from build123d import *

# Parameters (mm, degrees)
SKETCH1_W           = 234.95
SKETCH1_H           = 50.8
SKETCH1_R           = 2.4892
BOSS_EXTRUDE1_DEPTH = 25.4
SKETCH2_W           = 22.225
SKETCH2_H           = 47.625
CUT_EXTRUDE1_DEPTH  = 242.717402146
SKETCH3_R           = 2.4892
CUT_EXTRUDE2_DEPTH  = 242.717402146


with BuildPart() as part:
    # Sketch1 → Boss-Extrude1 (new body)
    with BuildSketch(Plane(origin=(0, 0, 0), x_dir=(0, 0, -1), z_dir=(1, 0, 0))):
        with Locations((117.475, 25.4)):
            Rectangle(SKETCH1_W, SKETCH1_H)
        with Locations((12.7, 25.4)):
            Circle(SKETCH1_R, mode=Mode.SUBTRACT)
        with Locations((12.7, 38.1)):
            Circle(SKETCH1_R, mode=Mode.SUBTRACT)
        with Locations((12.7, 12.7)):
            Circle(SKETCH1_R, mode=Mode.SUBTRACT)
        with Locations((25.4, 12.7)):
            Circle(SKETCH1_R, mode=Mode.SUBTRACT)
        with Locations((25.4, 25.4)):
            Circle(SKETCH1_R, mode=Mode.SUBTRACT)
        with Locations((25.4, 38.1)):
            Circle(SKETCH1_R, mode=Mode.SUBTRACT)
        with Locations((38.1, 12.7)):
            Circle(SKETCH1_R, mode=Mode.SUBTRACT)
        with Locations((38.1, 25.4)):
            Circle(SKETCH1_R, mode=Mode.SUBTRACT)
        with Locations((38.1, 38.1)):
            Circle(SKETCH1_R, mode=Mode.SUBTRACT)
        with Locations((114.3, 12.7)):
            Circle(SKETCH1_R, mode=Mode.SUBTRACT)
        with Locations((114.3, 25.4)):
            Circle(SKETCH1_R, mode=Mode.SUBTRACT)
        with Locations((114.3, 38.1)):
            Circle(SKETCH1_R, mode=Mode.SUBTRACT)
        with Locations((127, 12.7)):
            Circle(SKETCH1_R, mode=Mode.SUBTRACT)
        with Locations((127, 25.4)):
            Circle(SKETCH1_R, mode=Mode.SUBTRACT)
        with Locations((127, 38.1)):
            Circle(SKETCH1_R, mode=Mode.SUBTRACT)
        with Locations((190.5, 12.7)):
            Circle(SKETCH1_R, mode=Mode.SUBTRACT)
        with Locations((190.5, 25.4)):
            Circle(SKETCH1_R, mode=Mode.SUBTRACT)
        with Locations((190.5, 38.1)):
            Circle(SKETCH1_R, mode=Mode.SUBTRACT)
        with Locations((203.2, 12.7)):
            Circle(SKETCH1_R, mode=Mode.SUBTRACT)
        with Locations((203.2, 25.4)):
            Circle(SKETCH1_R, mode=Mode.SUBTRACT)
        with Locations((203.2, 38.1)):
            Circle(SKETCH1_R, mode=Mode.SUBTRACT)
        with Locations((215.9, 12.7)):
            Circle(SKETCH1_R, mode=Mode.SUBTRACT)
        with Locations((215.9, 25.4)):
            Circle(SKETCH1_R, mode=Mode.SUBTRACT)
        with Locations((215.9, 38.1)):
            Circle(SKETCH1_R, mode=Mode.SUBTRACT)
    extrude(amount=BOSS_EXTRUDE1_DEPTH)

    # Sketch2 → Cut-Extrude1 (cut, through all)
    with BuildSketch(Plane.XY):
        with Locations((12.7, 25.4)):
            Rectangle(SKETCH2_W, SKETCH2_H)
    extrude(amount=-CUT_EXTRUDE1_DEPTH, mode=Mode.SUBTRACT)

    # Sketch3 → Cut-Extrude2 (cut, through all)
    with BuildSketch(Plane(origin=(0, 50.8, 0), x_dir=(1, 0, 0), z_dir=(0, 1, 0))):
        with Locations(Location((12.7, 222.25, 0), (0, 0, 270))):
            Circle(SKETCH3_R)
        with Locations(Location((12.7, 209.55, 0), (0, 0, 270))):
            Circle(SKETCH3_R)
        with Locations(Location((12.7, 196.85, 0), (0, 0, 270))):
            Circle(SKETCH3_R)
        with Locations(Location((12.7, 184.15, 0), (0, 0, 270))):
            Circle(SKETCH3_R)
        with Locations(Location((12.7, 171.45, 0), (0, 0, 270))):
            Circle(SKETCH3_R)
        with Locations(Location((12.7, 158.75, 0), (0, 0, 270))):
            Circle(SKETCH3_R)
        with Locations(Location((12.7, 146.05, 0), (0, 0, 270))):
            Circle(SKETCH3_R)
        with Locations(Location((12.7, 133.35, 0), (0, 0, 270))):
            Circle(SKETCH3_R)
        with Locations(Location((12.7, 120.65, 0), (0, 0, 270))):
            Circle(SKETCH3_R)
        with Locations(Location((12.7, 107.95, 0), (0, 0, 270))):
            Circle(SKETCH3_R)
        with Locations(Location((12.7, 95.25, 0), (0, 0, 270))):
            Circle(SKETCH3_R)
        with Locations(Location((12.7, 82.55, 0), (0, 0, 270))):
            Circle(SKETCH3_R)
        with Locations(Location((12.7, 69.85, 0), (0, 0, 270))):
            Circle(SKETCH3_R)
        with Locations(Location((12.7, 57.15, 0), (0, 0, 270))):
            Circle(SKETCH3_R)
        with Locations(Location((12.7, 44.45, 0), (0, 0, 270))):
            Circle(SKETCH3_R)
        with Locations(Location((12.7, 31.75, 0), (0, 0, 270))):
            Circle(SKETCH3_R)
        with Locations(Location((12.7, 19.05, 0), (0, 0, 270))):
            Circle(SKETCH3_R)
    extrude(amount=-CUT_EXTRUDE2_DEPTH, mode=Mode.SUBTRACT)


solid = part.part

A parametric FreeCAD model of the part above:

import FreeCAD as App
import Part
import Sketcher
Q = App.Units.Quantity


def add_polygon(sketch, points):
    """Adds a closed chain of lines whose ends are joined by coincident constraints."""
    first, n = sketch.GeometryCount, len(points)
    for a, b in zip(points, points[1:] + points[:1]):
        sketch.addGeometry(Part.LineSegment(App.Vector(*a, 0), App.Vector(*b, 0)), False)
    for i in range(n):
        sketch.addConstraint(Sketcher.Constraint("Coincident", first + i, 2, first + (i + 1) % n, 1))

doc = App.newDocument("Part")
body = doc.addObject("PartDesign::Body", "Body")

# Sketch on YZ plane
sketch1 = body.newObject("Sketcher::SketchObject", "Sketch")
sketch1.AttachmentSupport = (doc.getObject("YZ_Plane"), [""])
sketch1.MapMode = "FlatFace"
add_polygon(sketch1, [(50.8, 0), (0, 0), (0, -234.95), (50.8, -234.95)])  # lines 0-3
sketch1.addGeometry(Part.Circle(App.Vector(12.7, -12.7, 0), App.Vector(0, 0, 1), 2.4892), False)  # 4
sketch1.addGeometry(Part.Circle(App.Vector(12.7, -25.4, 0), App.Vector(0, 0, 1), 2.4892), False)  # 5
sketch1.addGeometry(Part.Circle(App.Vector(12.7, -38.1, 0), App.Vector(0, 0, 1), 2.4892), False)  # 6
sketch1.addGeometry(Part.Circle(App.Vector(12.7, -114.3, 0), App.Vector(0, 0, 1), 2.4892), False)  # 7
sketch1.addGeometry(Part.Circle(App.Vector(25.4, -12.7, 0), App.Vector(0, 0, 1), 2.4892), False)  # 8
sketch1.addGeometry(Part.Circle(App.Vector(25.4, -25.4, 0), App.Vector(0, 0, 1), 2.4892), False)  # 9
sketch1.addGeometry(Part.Circle(App.Vector(25.4, -38.1, 0), App.Vector(0, 0, 1), 2.4892), False)  # 10
sketch1.addGeometry(Part.Circle(App.Vector(25.4, -114.3, 0), App.Vector(0, 0, 1), 2.4892), False)  # 11
sketch1.addGeometry(Part.Circle(App.Vector(12.7, -127, 0), App.Vector(0, 0, 1), 2.4892), False)  # 12
sketch1.addGeometry(Part.Circle(App.Vector(12.7, -190.5, 0), App.Vector(0, 0, 1), 2.4892), False)  # 13
sketch1.addGeometry(Part.Circle(App.Vector(12.7, -203.2, 0), App.Vector(0, 0, 1), 2.4892), False)  # 14
sketch1.addGeometry(Part.Circle(App.Vector(12.7, -215.9, 0), App.Vector(0, 0, 1), 2.4892), False)  # 15
sketch1.addGeometry(Part.Circle(App.Vector(25.4, -127, 0), App.Vector(0, 0, 1), 2.4892), False)  # 16
sketch1.addGeometry(Part.Circle(App.Vector(25.4, -190.5, 0), App.Vector(0, 0, 1), 2.4892), False)  # 17
sketch1.addGeometry(Part.Circle(App.Vector(25.4, -203.2, 0), App.Vector(0, 0, 1), 2.4892), False)  # 18
sketch1.addGeometry(Part.Circle(App.Vector(25.4, -215.9, 0), App.Vector(0, 0, 1), 2.4892), False)  # 19
sketch1.addGeometry(Part.Circle(App.Vector(38.1, -12.7, 0), App.Vector(0, 0, 1), 2.4892), False)  # 20
sketch1.addGeometry(Part.Circle(App.Vector(38.1, -25.4, 0), App.Vector(0, 0, 1), 2.4892), False)  # 21
sketch1.addGeometry(Part.Circle(App.Vector(38.1, -38.1, 0), App.Vector(0, 0, 1), 2.4892), False)  # 22
sketch1.addGeometry(Part.Circle(App.Vector(38.1, -114.3, 0), App.Vector(0, 0, 1), 2.4892), False)  # 23
sketch1.addGeometry(Part.Circle(App.Vector(38.1, -127, 0), App.Vector(0, 0, 1), 2.4892), False)  # 24
sketch1.addGeometry(Part.Circle(App.Vector(38.1, -190.5, 0), App.Vector(0, 0, 1), 2.4892), False)  # 25
sketch1.addGeometry(Part.Circle(App.Vector(38.1, -203.2, 0), App.Vector(0, 0, 1), 2.4892), False)  # 26
sketch1.addGeometry(Part.Circle(App.Vector(38.1, -215.9, 0), App.Vector(0, 0, 1), 2.4892), False)  # 27
sketch1.addConstraint(Sketcher.Constraint("Horizontal", 0))
sketch1.addConstraint(Sketcher.Constraint("Vertical", 1))
sketch1.addConstraint(Sketcher.Constraint("Horizontal", 2))
sketch1.addConstraint(Sketcher.Constraint("Vertical", 3))
sketch1.addConstraint(Sketcher.Constraint("Coincident", 0, 2, -1, 1))
sketch1.addConstraint(Sketcher.Constraint("Equal", 4, 5))
sketch1.addConstraint(Sketcher.Constraint("Equal", 5, 6))
sketch1.addConstraint(Sketcher.Constraint("Equal", 6, 7))
sketch1.addConstraint(Sketcher.Constraint("Equal", 7, 8))
sketch1.addConstraint(Sketcher.Constraint("Equal", 8, 9))
sketch1.addConstraint(Sketcher.Constraint("Equal", 9, 10))
sketch1.addConstraint(Sketcher.Constraint("Equal", 10, 11))
sketch1.addConstraint(Sketcher.Constraint("Equal", 11, 12))
sketch1.addConstraint(Sketcher.Constraint("Equal", 12, 13))
sketch1.addConstraint(Sketcher.Constraint("Equal", 13, 14))
sketch1.addConstraint(Sketcher.Constraint("Equal", 14, 15))
sketch1.addConstraint(Sketcher.Constraint("Equal", 15, 16))
sketch1.addConstraint(Sketcher.Constraint("Equal", 16, 17))
sketch1.addConstraint(Sketcher.Constraint("Equal", 17, 18))
sketch1.addConstraint(Sketcher.Constraint("Equal", 18, 19))
sketch1.addConstraint(Sketcher.Constraint("Equal", 19, 20))
sketch1.addConstraint(Sketcher.Constraint("Equal", 20, 21))
sketch1.addConstraint(Sketcher.Constraint("Equal", 21, 22))
sketch1.addConstraint(Sketcher.Constraint("Equal", 22, 23))
sketch1.addConstraint(Sketcher.Constraint("Equal", 23, 24))
sketch1.addConstraint(Sketcher.Constraint("Equal", 24, 25))
sketch1.addConstraint(Sketcher.Constraint("Equal", 25, 26))
sketch1.addConstraint(Sketcher.Constraint("Equal", 26, 27))
sketch1.addConstraint(Sketcher.Constraint("Horizontal", 4, 3, 8, 3))
sketch1.addConstraint(Sketcher.Constraint("Horizontal", 5, 3, 9, 3))
sketch1.addConstraint(Sketcher.Constraint("Horizontal", 6, 3, 10, 3))
sketch1.addConstraint(Sketcher.Constraint("Horizontal", 7, 3, 11, 3))
sketch1.addConstraint(Sketcher.Constraint("Horizontal", 12, 3, 16, 3))
sketch1.addConstraint(Sketcher.Constraint("Horizontal", 13, 3, 17, 3))
sketch1.addConstraint(Sketcher.Constraint("Horizontal", 14, 3, 18, 3))
sketch1.addConstraint(Sketcher.Constraint("Horizontal", 15, 3, 19, 3))
sketch1.addConstraint(Sketcher.Constraint("Horizontal", 8, 3, 20, 3))
sketch1.addConstraint(Sketcher.Constraint("Horizontal", 9, 3, 21, 3))
sketch1.addConstraint(Sketcher.Constraint("Horizontal", 10, 3, 22, 3))
sketch1.addConstraint(Sketcher.Constraint("Horizontal", 11, 3, 23, 3))
sketch1.addConstraint(Sketcher.Constraint("Horizontal", 16, 3, 24, 3))
sketch1.addConstraint(Sketcher.Constraint("Horizontal", 17, 3, 25, 3))
sketch1.addConstraint(Sketcher.Constraint("Horizontal", 18, 3, 26, 3))
sketch1.addConstraint(Sketcher.Constraint("Horizontal", 19, 3, 27, 3))
sketch1.addConstraint(Sketcher.Constraint("Vertical", 4, 3, 5, 3))
sketch1.addConstraint(Sketcher.Constraint("Vertical", 5, 3, 6, 3))
sketch1.addConstraint(Sketcher.Constraint("Vertical", 6, 3, 7, 3))
sketch1.addConstraint(Sketcher.Constraint("Vertical", 8, 3, 9, 3))
sketch1.addConstraint(Sketcher.Constraint("Vertical", 9, 3, 10, 3))
sketch1.addConstraint(Sketcher.Constraint("Vertical", 10, 3, 11, 3))
sketch1.addConstraint(Sketcher.Constraint("Vertical", 7, 3, 12, 3))
sketch1.addConstraint(Sketcher.Constraint("Vertical", 12, 3, 13, 3))
sketch1.addConstraint(Sketcher.Constraint("Vertical", 13, 3, 14, 3))
sketch1.addConstraint(Sketcher.Constraint("Vertical", 14, 3, 15, 3))
sketch1.addConstraint(Sketcher.Constraint("Vertical", 11, 3, 16, 3))
sketch1.addConstraint(Sketcher.Constraint("Vertical", 16, 3, 17, 3))
sketch1.addConstraint(Sketcher.Constraint("Vertical", 17, 3, 18, 3))
sketch1.addConstraint(Sketcher.Constraint("Vertical", 18, 3, 19, 3))
sketch1.addConstraint(Sketcher.Constraint("Vertical", 20, 3, 21, 3))
sketch1.addConstraint(Sketcher.Constraint("Vertical", 21, 3, 22, 3))
sketch1.addConstraint(Sketcher.Constraint("Vertical", 22, 3, 23, 3))
sketch1.addConstraint(Sketcher.Constraint("Vertical", 23, 3, 24, 3))
sketch1.addConstraint(Sketcher.Constraint("Vertical", 24, 3, 25, 3))
sketch1.addConstraint(Sketcher.Constraint("Vertical", 25, 3, 26, 3))
sketch1.addConstraint(Sketcher.Constraint("Vertical", 26, 3, 27, 3))
sketch1.addConstraint(Sketcher.Constraint("DistanceX", 0, 2, 0, 1, Q("2 in")))
sketch1.addConstraint(Sketcher.Constraint("Diameter", 4, Q("0.196 in")))
sketch1.addConstraint(Sketcher.Constraint("DistanceY", 5, 3, -1, 1, Q("1 in")))
sketch1.addConstraint(Sketcher.Constraint("DistanceX", -1, 1, 8, 3, Q("1 in")))
sketch1.addConstraint(Sketcher.Constraint("DistanceY", 12, 3, -1, 1, Q("5 in")))
sketch1.addConstraint(Sketcher.Constraint("DistanceY", 14, 3, -1, 1, Q("8 in")))
sketch1.addConstraint(Sketcher.Constraint("DistanceY", 6, 3, 4, 3, Q("1 in")))
sketch1.addConstraint(Sketcher.Constraint("DistanceY", 7, 3, 6, 3, Q("3 in")))
sketch1.addConstraint(Sketcher.Constraint("DistanceY", 13, 3, 7, 3, Q("3 in")))
sketch1.addConstraint(Sketcher.Constraint("DistanceY", 15, 3, 13, 3, Q("1 in")))
sketch1.addConstraint(Sketcher.Constraint("DistanceX", 4, 3, 20, 3, Q("1 in")))
sketch1.addConstraint(Sketcher.Constraint("DistanceY", 1, 2, 1, 1, Q("9.25 in")))
sketch1.addConstraint(Sketcher.Constraint("DistanceX", -1, 1, 4, 3, Q("0.5 in")))
sketch1.addConstraint(Sketcher.Constraint("DistanceY", 4, 3, -1, 1, Q("0.5 in")))
pad1 = body.newObject("PartDesign::Pad", "Pad")
pad1.Profile = sketch1
pad1.Length = Q("1 in")

# Sketch on XY plane
sketch2 = body.newObject("Sketcher::SketchObject", "Sketch001")
sketch2.AttachmentSupport = (doc.getObject("XY_Plane"), [""])
sketch2.MapMode = "FlatFace"
add_polygon(sketch2, [(1.5875, 49.2125), (1.5875, 1.5875), (23.8125, 1.5875), (23.8125, 49.2125)])  # lines 0-3
sketch2.addConstraint(Sketcher.Constraint("Vertical", 0))
sketch2.addConstraint(Sketcher.Constraint("Horizontal", 1))
sketch2.addConstraint(Sketcher.Constraint("Vertical", 2))
sketch2.addConstraint(Sketcher.Constraint("Horizontal", 3))
sketch2.addConstraint(Sketcher.Constraint("DistanceX", 1, 1, 1, 2, Q("0.875 in")))
sketch2.addConstraint(Sketcher.Constraint("DistanceY", 0, 2, 0, 1, Q("1.875 in")))
sketch2.addConstraint(Sketcher.Constraint("DistanceX", -1, 1, 0, 2, Q("0.0625 in")))
sketch2.addConstraint(Sketcher.Constraint("DistanceY", -1, 1, 0, 2, Q("0.0625 in")))
pocket1 = body.newObject("PartDesign::Pocket", "Pocket")
pocket1.Profile = sketch2
pocket1.Type = "ThroughAll"

# Sketch on XZ plane
sketch3 = body.newObject("Sketcher::SketchObject", "Sketch002")
sketch3.AttachmentSupport = (doc.getObject("XZ_Plane"), [""])
sketch3.MapMode = "FlatFace"
sketch3.AttachmentOffset = App.Placement(App.Vector(0, 0, -2 * 25.4), App.Rotation())
sketch3.addGeometry(Part.Circle(App.Vector(12.7, -222.25, 0), App.Vector(0, 0, 1), 2.4892), False)
sketch3.addGeometry(Part.Circle(App.Vector(12.7, -209.55, 0), App.Vector(0, 0, 1), 2.4892), False)
sketch3.addGeometry(Part.Circle(App.Vector(12.7, -196.85, 0), App.Vector(0, 0, 1), 2.4892), False)
sketch3.addGeometry(Part.Circle(App.Vector(12.7, -184.15, 0), App.Vector(0, 0, 1), 2.4892), False)
sketch3.addGeometry(Part.Circle(App.Vector(12.7, -171.45, 0), App.Vector(0, 0, 1), 2.4892), False)
sketch3.addGeometry(Part.Circle(App.Vector(12.7, -158.75, 0), App.Vector(0, 0, 1), 2.4892), False)
sketch3.addGeometry(Part.Circle(App.Vector(12.7, -146.05, 0), App.Vector(0, 0, 1), 2.4892), False)
sketch3.addGeometry(Part.Circle(App.Vector(12.7, -133.35, 0), App.Vector(0, 0, 1), 2.4892), False)
sketch3.addGeometry(Part.Circle(App.Vector(12.7, -120.65, 0), App.Vector(0, 0, 1), 2.4892), False)
sketch3.addGeometry(Part.Circle(App.Vector(12.7, -107.95, 0), App.Vector(0, 0, 1), 2.4892), False)
sketch3.addGeometry(Part.Circle(App.Vector(12.7, -95.25, 0), App.Vector(0, 0, 1), 2.4892), False)
sketch3.addGeometry(Part.Circle(App.Vector(12.7, -82.55, 0), App.Vector(0, 0, 1), 2.4892), False)
sketch3.addGeometry(Part.Circle(App.Vector(12.7, -69.85, 0), App.Vector(0, 0, 1), 2.4892), False)
sketch3.addGeometry(Part.Circle(App.Vector(12.7, -57.15, 0), App.Vector(0, 0, 1), 2.4892), False)
sketch3.addGeometry(Part.Circle(App.Vector(12.7, -44.45, 0), App.Vector(0, 0, 1), 2.4892), False)
sketch3.addGeometry(Part.Circle(App.Vector(12.7, -31.75, 0), App.Vector(0, 0, 1), 2.4892), False)
sketch3.addGeometry(Part.Circle(App.Vector(12.7, -19.05, 0), App.Vector(0, 0, 1), 2.4892), False)
sketch3.addConstraint(Sketcher.Constraint("Equal", 0, 1))
sketch3.addConstraint(Sketcher.Constraint("Equal", 1, 2))
sketch3.addConstraint(Sketcher.Constraint("Equal", 2, 3))
sketch3.addConstraint(Sketcher.Constraint("Equal", 3, 4))
sketch3.addConstraint(Sketcher.Constraint("Equal", 4, 5))
sketch3.addConstraint(Sketcher.Constraint("Equal", 5, 6))
sketch3.addConstraint(Sketcher.Constraint("Equal", 6, 7))
sketch3.addConstraint(Sketcher.Constraint("Equal", 7, 8))
sketch3.addConstraint(Sketcher.Constraint("Equal", 8, 9))
sketch3.addConstraint(Sketcher.Constraint("Equal", 9, 10))
sketch3.addConstraint(Sketcher.Constraint("Equal", 10, 11))
sketch3.addConstraint(Sketcher.Constraint("Equal", 11, 12))
sketch3.addConstraint(Sketcher.Constraint("Equal", 12, 13))
sketch3.addConstraint(Sketcher.Constraint("Equal", 13, 14))
sketch3.addConstraint(Sketcher.Constraint("Equal", 14, 15))
sketch3.addConstraint(Sketcher.Constraint("Equal", 15, 16))
sketch3.addConstraint(Sketcher.Constraint("Vertical", 0, 3, 1, 3))
sketch3.addConstraint(Sketcher.Constraint("Vertical", 1, 3, 2, 3))
sketch3.addConstraint(Sketcher.Constraint("Vertical", 2, 3, 3, 3))
sketch3.addConstraint(Sketcher.Constraint("Vertical", 3, 3, 4, 3))
sketch3.addConstraint(Sketcher.Constraint("Vertical", 4, 3, 5, 3))
sketch3.addConstraint(Sketcher.Constraint("Vertical", 5, 3, 6, 3))
sketch3.addConstraint(Sketcher.Constraint("Vertical", 6, 3, 7, 3))
sketch3.addConstraint(Sketcher.Constraint("Vertical", 7, 3, 8, 3))
sketch3.addConstraint(Sketcher.Constraint("Vertical", 8, 3, 9, 3))
sketch3.addConstraint(Sketcher.Constraint("Vertical", 9, 3, 10, 3))
sketch3.addConstraint(Sketcher.Constraint("Vertical", 10, 3, 11, 3))
sketch3.addConstraint(Sketcher.Constraint("Vertical", 11, 3, 12, 3))
sketch3.addConstraint(Sketcher.Constraint("Vertical", 12, 3, 13, 3))
sketch3.addConstraint(Sketcher.Constraint("Vertical", 13, 3, 14, 3))
sketch3.addConstraint(Sketcher.Constraint("Vertical", 14, 3, 15, 3))
sketch3.addConstraint(Sketcher.Constraint("Vertical", 15, 3, 16, 3))
sketch3.addConstraint(Sketcher.Constraint("Diameter", 0, Q("0.196 in")))
sketch3.addConstraint(Sketcher.Constraint("DistanceY", 0, 3, 2, 3, Q("1 in")))
sketch3.addConstraint(Sketcher.Constraint("DistanceY", 1, 3, 3, 3, Q("1 in")))
sketch3.addConstraint(Sketcher.Constraint("DistanceY", 2, 3, 4, 3, Q("1 in")))
sketch3.addConstraint(Sketcher.Constraint("DistanceY", 3, 3, 5, 3, Q("1 in")))
sketch3.addConstraint(Sketcher.Constraint("DistanceY", 4, 3, 6, 3, Q("1 in")))
sketch3.addConstraint(Sketcher.Constraint("DistanceY", 5, 3, 7, 3, Q("1 in")))
sketch3.addConstraint(Sketcher.Constraint("DistanceY", 6, 3, 8, 3, Q("1 in")))
sketch3.addConstraint(Sketcher.Constraint("DistanceY", 7, 3, 9, 3, Q("1 in")))
sketch3.addConstraint(Sketcher.Constraint("DistanceY", 8, 3, 10, 3, Q("1 in")))
sketch3.addConstraint(Sketcher.Constraint("DistanceY", 9, 3, 11, 3, Q("1 in")))
sketch3.addConstraint(Sketcher.Constraint("DistanceY", 10, 3, 12, 3, Q("1 in")))
sketch3.addConstraint(Sketcher.Constraint("DistanceY", 11, 3, 13, 3, Q("1 in")))
sketch3.addConstraint(Sketcher.Constraint("DistanceY", 12, 3, 14, 3, Q("1 in")))
sketch3.addConstraint(Sketcher.Constraint("DistanceY", 13, 3, 15, 3, Q("1 in")))
sketch3.addConstraint(Sketcher.Constraint("DistanceY", 14, 3, 16, 3, Q("1 in")))
sketch3.addConstraint(Sketcher.Constraint("DistanceX", -1, 1, 0, 3, Q("0.5 in")))
sketch3.addConstraint(Sketcher.Constraint("DistanceY", 0, 3, 1, 3, Q("0.5 in")))
sketch3.addConstraint(Sketcher.Constraint("DistanceY", 0, 3, -1, 1, Q("8.75 in")))
pocket2 = body.newObject("PartDesign::Pocket", "Pocket001")
pocket2.Profile = sketch3
pocket2.Type = "ThroughAll"
pocket2.Reversed = True

doc.recompute()
